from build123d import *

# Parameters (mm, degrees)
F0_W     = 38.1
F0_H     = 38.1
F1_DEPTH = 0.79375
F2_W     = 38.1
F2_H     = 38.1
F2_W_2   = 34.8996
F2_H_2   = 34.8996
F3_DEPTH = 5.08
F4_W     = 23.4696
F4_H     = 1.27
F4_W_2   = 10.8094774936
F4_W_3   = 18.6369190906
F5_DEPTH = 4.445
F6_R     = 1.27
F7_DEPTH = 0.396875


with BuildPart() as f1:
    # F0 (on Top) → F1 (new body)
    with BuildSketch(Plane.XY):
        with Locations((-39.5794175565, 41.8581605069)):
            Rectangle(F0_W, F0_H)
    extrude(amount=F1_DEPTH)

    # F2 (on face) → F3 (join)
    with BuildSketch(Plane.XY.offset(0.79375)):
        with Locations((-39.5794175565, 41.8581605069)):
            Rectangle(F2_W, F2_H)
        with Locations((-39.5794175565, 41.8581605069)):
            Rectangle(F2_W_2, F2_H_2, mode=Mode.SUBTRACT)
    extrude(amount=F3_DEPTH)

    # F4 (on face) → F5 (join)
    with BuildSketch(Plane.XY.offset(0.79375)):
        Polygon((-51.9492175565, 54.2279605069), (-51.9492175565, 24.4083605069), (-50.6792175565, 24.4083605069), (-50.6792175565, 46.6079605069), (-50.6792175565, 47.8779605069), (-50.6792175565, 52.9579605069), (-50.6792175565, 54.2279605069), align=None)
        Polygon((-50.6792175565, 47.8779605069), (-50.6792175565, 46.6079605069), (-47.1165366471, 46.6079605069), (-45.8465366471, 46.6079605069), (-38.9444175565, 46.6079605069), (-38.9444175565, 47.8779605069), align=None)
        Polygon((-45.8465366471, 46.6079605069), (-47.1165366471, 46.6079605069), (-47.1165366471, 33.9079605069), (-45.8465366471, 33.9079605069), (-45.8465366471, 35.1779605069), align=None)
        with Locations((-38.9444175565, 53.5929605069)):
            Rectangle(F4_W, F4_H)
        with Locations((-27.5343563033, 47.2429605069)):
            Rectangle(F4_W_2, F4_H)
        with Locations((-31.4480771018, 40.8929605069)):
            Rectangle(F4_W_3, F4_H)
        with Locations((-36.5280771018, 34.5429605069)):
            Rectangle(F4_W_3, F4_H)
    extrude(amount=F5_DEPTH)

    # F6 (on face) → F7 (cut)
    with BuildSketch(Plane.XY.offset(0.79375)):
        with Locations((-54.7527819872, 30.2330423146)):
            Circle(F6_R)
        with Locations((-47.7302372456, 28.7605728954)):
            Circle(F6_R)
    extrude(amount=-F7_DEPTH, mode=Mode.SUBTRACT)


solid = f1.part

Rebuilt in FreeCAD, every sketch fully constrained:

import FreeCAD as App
import Part
import Sketcher
Q = App.Units.Quantity

doc = App.newDocument("Part")
body = doc.addObject("PartDesign::Body", "Body")

sketch1 = body.newObject("Sketcher::SketchObject", "Sketch")
sketch1.AttachmentSupport = (doc.getObject("XY_Plane"), [""])
sketch1.MapMode = "FlatFace"
sketch1.addGeometry([
    Part.LineSegment(App.Vector(-59, 61, 0), App.Vector(-59, 23, 0)),
    Part.LineSegment(App.Vector(-59, 23, 0), App.Vector(-21, 23, 0)),
    Part.LineSegment(App.Vector(-21, 23, 0), App.Vector(-21, 61, 0)),
    Part.LineSegment(App.Vector(-21, 61, 0), App.Vector(-59, 61, 0)),
], False)
sketch1.addConstraint([
    Sketcher.Constraint("Coincident", 0, 2, 1, 1),
    Sketcher.Constraint("Coincident", 1, 2, 2, 1),
    Sketcher.Constraint("Coincident", 2, 2, 3, 1),
    Sketcher.Constraint("Coincident", 3, 2, 0, 1),
    Sketcher.Constraint("Vertical", 0),
    Sketcher.Constraint("Horizontal", 1),
    Sketcher.Constraint("Vertical", 2),
    Sketcher.Constraint("Horizontal", 3),
    Sketcher.Constraint("Equal", 3, 0),
    Sketcher.Constraint("DistanceX", 1, 1, 1, 2, Q("1.5 in")),
    Sketcher.Constraint("DistanceY", -1, 1, 0, 2, Q("22.808161 mm")),
    Sketcher.Constraint("DistanceX", 0, 2, -1, 1, Q("58.629418 mm")),
])
pad1 = body.newObject("PartDesign::Pad", "Pad")
pad1.Profile = sketch1
pad1.Length = Q("0.03125 in")

sketch2 = body.newObject("Sketcher::SketchObject", "Sketch001")
sketch2.AttachmentSupport = (doc.getObject("XY_Plane"), [""])
sketch2.MapMode = "FlatFace"
sketch2.AttachmentOffset = App.Placement(App.Vector(0, 0, 0.03125 * 25.4), App.Rotation())
sketch2.addGeometry([
    Part.LineSegment(App.Vector(-59, 61, 0), App.Vector(-59, 23, 0)),
    Part.LineSegment(App.Vector(-59, 23, 0), App.Vector(-21, 23, 0)),
    Part.LineSegment(App.Vector(-21, 23, 0), App.Vector(-21, 61, 0)),
    Part.LineSegment(App.Vector(-21, 61, 0), App.Vector(-59, 61, 0)),
    Part.LineSegment(App.Vector(-22, 24, 0), App.Vector(-57, 24, 0)),
    Part.LineSegment(App.Vector(-57, 24, 0), App.Vector(-57, 59, 0)),
    Part.LineSegment(App.Vector(-57, 59, 0), App.Vector(-22, 59, 0)),
    Part.LineSegment(App.Vector(-22, 59, 0), App.Vector(-22, 24, 0)),
], False)
sketch2.addConstraint([
    Sketcher.Constraint("Coincident", 0, 2, 1, 1),
    Sketcher.Constraint("Coincident", 1, 2, 2, 1),
    Sketcher.Constraint("Coincident", 2, 2, 3, 1),
    Sketcher.Constraint("Coincident", 3, 2, 0, 1),
    Sketcher.Constraint("Coincident", 4, 2, 5, 1),
    Sketcher.Constraint("Coincident", 5, 2, 6, 1),
    Sketcher.Constraint("Coincident", 6, 2, 7, 1),
    Sketcher.Constraint("Coincident", 7, 2, 4, 1),
    Sketcher.Constraint("Vertical", 0),
    Sketcher.Constraint("Horizontal", 1),
    Sketcher.Constraint("Vertical", 2),
    Sketcher.Constraint("Horizontal", 3),
    Sketcher.Constraint("Horizontal", 4),
    Sketcher.Constraint("Vertical", 5),
    Sketcher.Constraint("Horizontal", 6),
    Sketcher.Constraint("Vertical", 7),
    Sketcher.Constraint("Equal", 3, 0),
    Sketcher.Constraint("Equal", 6, 5),
    Sketcher.Constraint("DistanceX", 1, 1, 1, 2, Q("1.5 in")),
    Sketcher.Constraint("DistanceX", 4, 2, 4, 1, Q("1.374 in")),
    Sketcher.Constraint("DistanceX", 0, 2, 4, 2, Q("0.063 in")),
    Sketcher.Constraint("DistanceY", 0, 2, 4, 2, Q("0.063 in")),
    Sketcher.Constraint("DistanceY", -1, 1, 0, 2, Q("22.808161 mm")),
    Sketcher.Constraint("DistanceX", 0, 2, -1, 1, Q("58.629418 mm")),
])
pad2 = body.newObject("PartDesign::Pad", "Pad001")
pad2.Profile = sketch2
pad2.Length = Q("0.2 in")

sketch3 = body.newObject("Sketcher::SketchObject", "Sketch002")
sketch3.AttachmentSupport = (doc.getObject("XY_Plane"), [""])
sketch3.MapMode = "FlatFace"
sketch3.AttachmentOffset = App.Placement(App.Vector(0, 0, 0.03125 * 25.4), App.Rotation())
sketch3.addGeometry([
    Part.LineSegment(App.Vector(-51.9, 54.2, 0), App.Vector(-51.9, 24.4, 0)),
    Part.LineSegment(App.Vector(-51.9, 24.4, 0), App.Vector(-50.7, 24.4, 0)),
    Part.LineSegment(App.Vector(-50.7, 24.4, 0), App.Vector(-50.7, 46.6, 0)),
    Part.LineSegment(App.Vector(-50.7, 46.6, 0), App.Vector(-47.1, 46.6, 0)),
    Part.LineSegment(App.Vector(-47.1, 46.6, 0), App.Vector(-47.1, 33.9, 0)),
    Part.LineSegment(App.Vector(-47.1, 33.9, 0), App.Vector(-27.2, 33.9, 0)),
    Part.LineSegment(App.Vector(-27.2, 33.9, 0), App.Vector(-27.2, 35.2, 0)),
    Part.LineSegment(App.Vector(-27.2, 35.2, 0), App.Vector(-45.8, 35.2, 0)),
    Part.LineSegment(App.Vector(-45.8, 35.2, 0), App.Vector(-45.8, 46.6, 0)),
    Part.LineSegment(App.Vector(-45.8, 46.6, 0), App.Vector(-38.9, 46.6, 0)),
    Part.LineSegment(App.Vector(-38.9, 46.6, 0), App.Vector(-38.9, 47.9, 0)),
    Part.LineSegment(App.Vector(-38.9, 47.9, 0), App.Vector(-50.7, 47.9, 0)),
    Part.LineSegment(App.Vector(-50.7, 47.9, 0), App.Vector(-50.7, 53, 0)),
    Part.LineSegment(App.Vector(-50.7, 53, 0), App.Vector(-27.2, 53, 0)),
    Part.LineSegment(App.Vector(-27.2, 53, 0), App.Vector(-27.2, 54.2, 0)),
    Part.LineSegment(App.Vector(-27.2, 54.2, 0), App.Vector(-51.9, 54.2, 0)),
    Part.LineSegment(App.Vector(-32.9, 47.9, 0), App.Vector(-32.9, 46.6, 0)),
    Part.LineSegment(App.Vector(-32.9, 46.6, 0), App.Vector(-22.1, 46.6, 0)),
    Part.LineSegment(App.Vector(-22.1, 46.6, 0), App.Vector(-22.1, 47.9, 0)),
    Part.LineSegment(App.Vector(-22.1, 47.9, 0), App.Vector(-32.9, 47.9, 0)),
    Part.LineSegment(App.Vector(-40.8, 41.5, 0), App.Vector(-40.8, 40.3, 0)),
    Part.LineSegment(App.Vector(-40.8, 40.3, 0), App.Vector(-22.1, 40.3, 0)),
    Part.LineSegment(App.Vector(-22.1, 40.3, 0), App.Vector(-22.1, 41.5, 0)),
    Part.LineSegment(App.Vector(-22.1, 41.5, 0), App.Vector(-40.8, 41.5, 0)),
], False)
sketch3.addConstraint([
    Sketcher.Constraint("Coincident", 0, 2, 1, 1),
    Sketcher.Constraint("Coincident", 1, 2, 2, 1),
    Sketcher.Constraint("Coincident", 2, 2, 3, 1),
    Sketcher.Constraint("Coincident", 3, 2, 4, 1),
    Sketcher.Constraint("Coincident", 4, 2, 5, 1),
    Sketcher.Constraint("Coincident", 5, 2, 6, 1),
    Sketcher.Constraint("Coincident", 6, 2, 7, 1),
    Sketcher.Constraint("Coincident", 7, 2, 8, 1),
    Sketcher.Constraint("Coincident", 8, 2, 9, 1),
    Sketcher.Constraint("Coincident", 9, 2, 10, 1),
    Sketcher.Constraint("Coincident", 10, 2, 11, 1),
    Sketcher.Constraint("Coincident", 11, 2, 12, 1),
    Sketcher.Constraint("Coincident", 12, 2, 13, 1),
    Sketcher.Constraint("Coincident", 13, 2, 14, 1),
    Sketcher.Constraint("Coincident", 14, 2, 15, 1),
    Sketcher.Constraint("Coincident", 15, 2, 0, 1),
    Sketcher.Constraint("Coincident", 16, 2, 17, 1),
    Sketcher.Constraint("Coincident", 17, 2, 18, 1),
    Sketcher.Constraint("Coincident", 18, 2, 19, 1),
    Sketcher.Constraint("Coincident", 19, 2, 16, 1),
    Sketcher.Constraint("Coincident", 20, 2, 21, 1),
    Sketcher.Constraint("Coincident", 21, 2, 22, 1),
    Sketcher.Constraint("Coincident", 22, 2, 23, 1),
    Sketcher.Constraint("Coincident", 23, 2, 20, 1),
    Sketcher.Constraint("Vertical", 0),
    Sketcher.Constraint("Horizontal", 1),
    Sketcher.Constraint("Vertical", 2),
    Sketcher.Constraint("Horizontal", 3),
    Sketcher.Constraint("Vertical", 4),
    Sketcher.Constraint("Horizontal", 5),
    Sketcher.Constraint("Vertical", 6),
    Sketcher.Constraint("Horizontal", 7),
    Sketcher.Constraint("Vertical", 8),
    Sketcher.Constraint("Horizontal", 9),
    Sketcher.Constraint("Vertical", 10),
    Sketcher.Constraint("Horizontal", 11),
    Sketcher.Constraint("Vertical", 12),
    Sketcher.Constraint("Horizontal", 13),
    Sketcher.Constraint("Vertical", 14),
    Sketcher.Constraint("Horizontal", 15),
    Sketcher.Constraint("Vertical", 16),
    Sketcher.Constraint("Horizontal", 17),
    Sketcher.Constraint("Vertical", 18),
    Sketcher.Constraint("Horizontal", 19),
    Sketcher.Constraint("Vertical", 20),
    Sketcher.Constraint("Horizontal", 21),
    Sketcher.Constraint("Vertical", 22),
    Sketcher.Constraint("Horizontal", 23),
    Sketcher.Constraint("Horizontal", 3, 2, 8, 2),
    Sketcher.Constraint("Horizontal", 9, 2, 16, 2),
    Sketcher.Constraint("Horizontal", 11, 2, 18, 2),
    Sketcher.Constraint("Vertical", 2, 2, 11, 2),
    Sketcher.Constraint("Vertical", 6, 2, 13, 2),
    Sketcher.Constraint("Vertical", 18, 2, 21, 2),
    Sketcher.Constraint("Equal", 7, 21),
    Sketcher.Constraint("Equal", 1, 6),
    Sketcher.Constraint("Equal", 6, 10),
    Sketcher.Constraint("Equal", 10, 14),
    Sketcher.Constraint("Equal", 18, 20),
    Sketcher.Constraint("DistanceY", 4, 2, 4, 1, Q("0.5 in")),
    Sketcher.Constraint("DistanceY", 12, 1, 12, 2, Q("0.2 in")),
    Sketcher.Constraint("DistanceX", 1, 1, 1, 2, Q("0.05 in")),
    Sketcher.Constraint("DistanceX", 13, 2, 17, 2, Q("0.2 in")),
    Sketcher.Constraint("DistanceY", 7, 2, 20, 2, Q("0.2 in")),
    Sketcher.Constraint("DistanceX", 11, 2, 11, 1, Q("0.462 in")),
    Sketcher.Constraint("DistanceX", 13, 1, 13, 2, Q("0.924 in")),
    Sketcher.Constraint("DistanceY", 0, 2, 0, 1, Q("1.174 in")),
    Sketcher.Constraint("DistanceX", 4, 2, 7, 2, Q("0.05 in")),
    Sketcher.Constraint("DistanceX", 3, 1, 3, 2, Q("3.562681 mm")),
    Sketcher.Constraint("DistanceX", 17, 1, 17, 2, Q("10.809477 mm")),
    Sketcher.Constraint("DistanceY", -1, 1, 0, 2, Q("24.408361 mm")),
    Sketcher.Constraint("DistanceX", 0, 2, -1, 1, Q("51.949218 mm")),
])
pad3 = body.newObject("PartDesign::Pad", "Pad002")
pad3.Profile = sketch3
pad3.Length = Q("0.175 in")

sketch4 = body.newObject("Sketcher::SketchObject", "Sketch003")
sketch4.AttachmentSupport = (doc.getObject("XY_Plane"), [""])
sketch4.MapMode = "FlatFace"
sketch4.AttachmentOffset = App.Placement(App.Vector(0, 0, 0.03125 * 25.4), App.Rotation())
sketch4.addGeometry([
    Part.Circle(App.Vector(-54.8, 30.2, 0), App.Vector(0, 0, 1), 1.3),
    Part.Circle(App.Vector(-47.7, 28.8, 0), App.Vector(0, 0, 1), 1.3),
], False)
sketch4.addConstraint([
    Sketcher.Constraint("Equal", 0, 1),
    Sketcher.Constraint("Diameter", 0, Q("0.1 in")),
    Sketcher.Constraint("DistanceX", 0, 3, -1, 1, Q("54.752782 mm")),
    Sketcher.Constraint("DistanceY", 1, 3, 0, 3, Q("1.472469 mm")),
    Sketcher.Constraint("DistanceY", -1, 1, 0, 3, Q("30.233042 mm")),
    Sketcher.Constraint("DistanceX", 1, 3, -1, 1, Q("47.730237 mm")),
])
pocket1 = body.newObject("PartDesign::Pocket", "Pocket")
pocket1.Profile = sketch4
pocket1.Length = Q("0.015625 in")

doc.recompute()
